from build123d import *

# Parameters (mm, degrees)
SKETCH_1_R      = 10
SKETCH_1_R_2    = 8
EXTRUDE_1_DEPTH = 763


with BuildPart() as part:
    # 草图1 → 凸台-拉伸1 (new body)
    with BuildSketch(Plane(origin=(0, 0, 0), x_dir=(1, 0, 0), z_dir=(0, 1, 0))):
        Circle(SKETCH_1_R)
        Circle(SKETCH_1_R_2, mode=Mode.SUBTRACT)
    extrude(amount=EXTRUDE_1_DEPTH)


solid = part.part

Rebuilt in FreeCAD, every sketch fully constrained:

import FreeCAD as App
import Part
import Sketcher

V = App.Vector

doc = App.newDocument("Part")
body = doc.addObject("PartDesign::Body", "Body")

# Sketch on XZ plane
sketch1 = body.newObject("Sketcher::SketchObject", "Sketch")
sketch1.AttachmentSupport = (doc.getObject("XZ_Plane"), [""])
sketch1.MapMode = "FlatFace"
sketch1.addGeometry(Part.Circle(V(0, 0, 0), V(0, 0, 1), 10), False)
sketch1.addGeometry(Part.Circle(V(0, 0, 0), V(0, 0, 1), 8), False)
sketch1.addConstraint(Sketcher.Constraint("Coincident", 0, 3, -1, 1))
sketch1.addConstraint(Sketcher.Constraint("Coincident", 1, 3, -1, 1))
sketch1.addConstraint(Sketcher.Constraint("Diameter", 0, 20.0))
sketch1.addConstraint(Sketcher.Constraint("Diameter", 1, 16.0))
pad1 = body.newObject("PartDesign::Pad", "Pad")
pad1.Profile = sketch1
pad1.Length = 763
pad1.Reversed = True

doc.recompute()
